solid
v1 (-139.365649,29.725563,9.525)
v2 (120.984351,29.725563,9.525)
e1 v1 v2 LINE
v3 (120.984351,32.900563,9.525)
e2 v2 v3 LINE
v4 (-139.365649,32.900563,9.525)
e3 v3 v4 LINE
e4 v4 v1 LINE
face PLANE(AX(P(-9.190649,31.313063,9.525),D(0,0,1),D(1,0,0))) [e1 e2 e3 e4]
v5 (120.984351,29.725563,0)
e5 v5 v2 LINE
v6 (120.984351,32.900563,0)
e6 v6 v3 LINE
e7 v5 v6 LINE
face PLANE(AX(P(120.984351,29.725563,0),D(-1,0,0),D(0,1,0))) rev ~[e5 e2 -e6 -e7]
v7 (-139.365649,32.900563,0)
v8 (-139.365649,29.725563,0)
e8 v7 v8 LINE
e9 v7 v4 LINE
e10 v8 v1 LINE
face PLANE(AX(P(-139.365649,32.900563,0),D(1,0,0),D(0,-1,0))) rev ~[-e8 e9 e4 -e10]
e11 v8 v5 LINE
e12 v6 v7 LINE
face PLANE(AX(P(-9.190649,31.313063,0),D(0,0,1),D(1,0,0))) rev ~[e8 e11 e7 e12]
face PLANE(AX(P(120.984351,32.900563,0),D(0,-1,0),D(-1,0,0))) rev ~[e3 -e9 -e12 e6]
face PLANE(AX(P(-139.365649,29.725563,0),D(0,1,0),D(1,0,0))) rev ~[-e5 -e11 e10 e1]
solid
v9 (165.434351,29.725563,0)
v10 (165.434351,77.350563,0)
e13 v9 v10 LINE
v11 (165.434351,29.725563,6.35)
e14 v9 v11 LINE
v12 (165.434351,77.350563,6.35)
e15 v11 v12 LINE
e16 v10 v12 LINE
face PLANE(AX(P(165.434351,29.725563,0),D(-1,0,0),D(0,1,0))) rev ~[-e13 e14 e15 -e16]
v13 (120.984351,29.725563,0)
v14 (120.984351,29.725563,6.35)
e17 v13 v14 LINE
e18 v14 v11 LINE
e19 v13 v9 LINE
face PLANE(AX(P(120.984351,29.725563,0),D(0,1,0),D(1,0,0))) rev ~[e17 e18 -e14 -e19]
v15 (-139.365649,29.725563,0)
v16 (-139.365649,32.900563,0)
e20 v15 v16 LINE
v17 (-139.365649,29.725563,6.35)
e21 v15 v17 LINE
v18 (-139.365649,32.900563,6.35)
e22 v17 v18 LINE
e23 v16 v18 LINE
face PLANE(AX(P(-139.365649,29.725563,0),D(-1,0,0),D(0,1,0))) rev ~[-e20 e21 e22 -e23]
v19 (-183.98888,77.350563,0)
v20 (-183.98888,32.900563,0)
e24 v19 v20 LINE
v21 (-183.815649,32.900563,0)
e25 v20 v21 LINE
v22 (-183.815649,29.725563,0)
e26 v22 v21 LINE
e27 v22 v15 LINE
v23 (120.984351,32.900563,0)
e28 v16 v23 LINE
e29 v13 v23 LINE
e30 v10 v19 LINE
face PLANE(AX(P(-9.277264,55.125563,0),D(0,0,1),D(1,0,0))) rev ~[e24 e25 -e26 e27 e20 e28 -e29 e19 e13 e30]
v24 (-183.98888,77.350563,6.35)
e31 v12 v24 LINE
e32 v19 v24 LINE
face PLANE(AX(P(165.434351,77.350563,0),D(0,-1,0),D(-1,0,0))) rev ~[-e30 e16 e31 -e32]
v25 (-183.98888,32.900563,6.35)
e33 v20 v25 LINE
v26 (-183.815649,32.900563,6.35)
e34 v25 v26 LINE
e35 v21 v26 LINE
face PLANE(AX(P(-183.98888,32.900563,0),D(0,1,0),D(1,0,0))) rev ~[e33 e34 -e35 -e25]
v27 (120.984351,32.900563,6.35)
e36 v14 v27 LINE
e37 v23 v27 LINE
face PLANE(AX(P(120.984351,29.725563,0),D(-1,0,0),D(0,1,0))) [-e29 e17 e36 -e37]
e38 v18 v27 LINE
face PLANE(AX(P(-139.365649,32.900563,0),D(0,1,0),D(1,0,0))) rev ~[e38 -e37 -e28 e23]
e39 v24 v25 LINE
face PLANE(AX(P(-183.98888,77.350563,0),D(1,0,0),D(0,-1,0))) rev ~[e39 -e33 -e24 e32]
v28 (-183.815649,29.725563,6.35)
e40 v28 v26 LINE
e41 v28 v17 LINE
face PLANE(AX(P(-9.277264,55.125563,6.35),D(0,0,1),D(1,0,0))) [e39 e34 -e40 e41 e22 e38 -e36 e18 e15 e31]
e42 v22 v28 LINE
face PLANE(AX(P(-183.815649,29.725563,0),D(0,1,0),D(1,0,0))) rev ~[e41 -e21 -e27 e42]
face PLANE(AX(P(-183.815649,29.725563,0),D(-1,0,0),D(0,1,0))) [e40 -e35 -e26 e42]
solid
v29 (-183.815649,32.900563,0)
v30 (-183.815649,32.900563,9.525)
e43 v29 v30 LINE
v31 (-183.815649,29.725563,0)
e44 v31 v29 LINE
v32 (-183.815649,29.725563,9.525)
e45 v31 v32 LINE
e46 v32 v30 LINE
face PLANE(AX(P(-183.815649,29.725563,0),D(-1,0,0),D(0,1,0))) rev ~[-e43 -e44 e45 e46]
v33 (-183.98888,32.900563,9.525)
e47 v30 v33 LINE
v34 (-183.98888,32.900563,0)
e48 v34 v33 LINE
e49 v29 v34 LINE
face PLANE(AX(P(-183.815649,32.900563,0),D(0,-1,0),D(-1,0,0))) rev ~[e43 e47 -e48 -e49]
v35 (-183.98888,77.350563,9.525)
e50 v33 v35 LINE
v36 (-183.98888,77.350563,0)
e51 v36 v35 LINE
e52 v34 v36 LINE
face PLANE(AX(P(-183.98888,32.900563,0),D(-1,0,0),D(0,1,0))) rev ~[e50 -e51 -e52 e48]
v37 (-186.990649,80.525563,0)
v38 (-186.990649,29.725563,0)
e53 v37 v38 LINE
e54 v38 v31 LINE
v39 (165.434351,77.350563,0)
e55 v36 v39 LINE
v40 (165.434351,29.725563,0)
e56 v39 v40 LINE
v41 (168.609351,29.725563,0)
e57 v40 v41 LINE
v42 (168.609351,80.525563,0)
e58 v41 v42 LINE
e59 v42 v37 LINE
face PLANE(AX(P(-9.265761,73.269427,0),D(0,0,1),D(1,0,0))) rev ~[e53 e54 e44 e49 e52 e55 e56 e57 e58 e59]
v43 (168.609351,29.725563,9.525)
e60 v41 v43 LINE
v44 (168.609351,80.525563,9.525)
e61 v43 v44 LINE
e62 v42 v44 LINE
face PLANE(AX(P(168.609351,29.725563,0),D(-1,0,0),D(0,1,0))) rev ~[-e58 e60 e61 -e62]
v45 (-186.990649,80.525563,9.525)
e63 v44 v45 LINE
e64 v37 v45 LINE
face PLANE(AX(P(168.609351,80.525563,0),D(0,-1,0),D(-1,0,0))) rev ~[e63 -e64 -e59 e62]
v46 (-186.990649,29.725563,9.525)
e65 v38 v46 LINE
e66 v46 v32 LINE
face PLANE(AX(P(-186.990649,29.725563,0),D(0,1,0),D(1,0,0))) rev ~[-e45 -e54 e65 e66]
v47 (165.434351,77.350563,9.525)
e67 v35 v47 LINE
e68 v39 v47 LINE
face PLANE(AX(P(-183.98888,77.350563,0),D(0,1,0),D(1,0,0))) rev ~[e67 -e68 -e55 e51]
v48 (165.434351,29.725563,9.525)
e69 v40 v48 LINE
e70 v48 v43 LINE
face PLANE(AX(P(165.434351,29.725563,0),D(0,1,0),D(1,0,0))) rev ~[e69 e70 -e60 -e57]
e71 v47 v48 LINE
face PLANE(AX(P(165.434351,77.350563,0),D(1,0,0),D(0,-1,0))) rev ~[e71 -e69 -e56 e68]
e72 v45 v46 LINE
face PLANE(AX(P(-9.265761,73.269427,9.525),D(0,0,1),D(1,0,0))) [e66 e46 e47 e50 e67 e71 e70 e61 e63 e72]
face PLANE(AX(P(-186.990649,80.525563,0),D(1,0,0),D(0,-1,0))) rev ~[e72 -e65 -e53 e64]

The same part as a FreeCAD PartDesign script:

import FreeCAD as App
import Part
import Sketcher
Q = App.Units.Quantity

doc = App.newDocument("Part")
body = doc.addObject("PartDesign::Body", "Body")
body.AllowCompound = True

sketch1 = doc.addObject("Sketcher::SketchObject", "Sketch")
body.addObject(sketch1)
sketch1.AttachmentSupport = (doc.XY_Plane, [""])
sketch1.MapMode = "FlatFace"
sketch1.addGeometry(Part.LineSegment(App.Vector(-186.99, 29.73, 0), App.Vector(-183.82, 29.73, 0)), False)
sketch1.addGeometry(Part.LineSegment(App.Vector(-183.82, 29.73, 0), App.Vector(-183.82, 32.9, 0)), False)
sketch1.addGeometry(Part.LineSegment(App.Vector(-183.82, 32.9, 0), App.Vector(-183.99, 32.9, 0)), False)
sketch1.addGeometry(Part.LineSegment(App.Vector(-183.99, 32.9, 0), App.Vector(-183.99, 77.35, 0)), False)
sketch1.addGeometry(Part.LineSegment(App.Vector(-183.99, 77.35, 0), App.Vector(165.43, 77.35, 0)), False)
sketch1.addGeometry(Part.LineSegment(App.Vector(165.43, 77.35, 0), App.Vector(165.43, 29.73, 0)), False)
sketch1.addGeometry(Part.LineSegment(App.Vector(165.43, 29.73, 0), App.Vector(168.61, 29.73, 0)), False)
sketch1.addGeometry(Part.LineSegment(App.Vector(168.61, 29.73, 0), App.Vector(168.61, 80.53, 0)), False)
sketch1.addGeometry(Part.LineSegment(App.Vector(168.61, 80.53, 0), App.Vector(-186.99, 80.53, 0)), False)
sketch1.addGeometry(Part.LineSegment(App.Vector(-186.99, 80.53, 0), App.Vector(-186.99, 29.73, 0)), False)
sketch1.addGeometry(Part.LineSegment(App.Vector(-139.37, 32.9, 0), App.Vector(-139.37, 29.73, 0)), False)
sketch1.addGeometry(Part.LineSegment(App.Vector(-139.37, 29.73, 0), App.Vector(120.98, 29.73, 0)), False)
sketch1.addGeometry(Part.LineSegment(App.Vector(120.98, 29.73, 0), App.Vector(120.98, 32.9, 0)), False)
sketch1.addGeometry(Part.LineSegment(App.Vector(120.98, 32.9, 0), App.Vector(-139.37, 32.9, 0)), False)
sketch1.addConstraint(Sketcher.Constraint("Coincident", 0, 2, 1, 1))
sketch1.addConstraint(Sketcher.Constraint("Coincident", 1, 2, 2, 1))
sketch1.addConstraint(Sketcher.Constraint("Coincident", 2, 2, 3, 1))
sketch1.addConstraint(Sketcher.Constraint("Coincident", 3, 2, 4, 1))
sketch1.addConstraint(Sketcher.Constraint("Coincident", 4, 2, 5, 1))
sketch1.addConstraint(Sketcher.Constraint("Coincident", 5, 2, 6, 1))
sketch1.addConstraint(Sketcher.Constraint("Coincident", 6, 2, 7, 1))
sketch1.addConstraint(Sketcher.Constraint("Coincident", 7, 2, 8, 1))
sketch1.addConstraint(Sketcher.Constraint("Coincident", 8, 2, 9, 1))
sketch1.addConstraint(Sketcher.Constraint("Coincident", 9, 2, 0, 1))
sketch1.addConstraint(Sketcher.Constraint("Coincident", 10, 2, 11, 1))
sketch1.addConstraint(Sketcher.Constraint("Coincident", 11, 2, 12, 1))
sketch1.addConstraint(Sketcher.Constraint("Coincident", 12, 2, 13, 1))
sketch1.addConstraint(Sketcher.Constraint("Coincident", 13, 2, 10, 1))
sketch1.addConstraint(Sketcher.Constraint("Horizontal", 0))
sketch1.addConstraint(Sketcher.Constraint("Vertical", 1))
sketch1.addConstraint(Sketcher.Constraint("Horizontal", 2))
sketch1.addConstraint(Sketcher.Constraint("Vertical", 3))
sketch1.addConstraint(Sketcher.Constraint("Horizontal", 4))
sketch1.addConstraint(Sketcher.Constraint("Vertical", 5))
sketch1.addConstraint(Sketcher.Constraint("Horizontal", 6))
sketch1.addConstraint(Sketcher.Constraint("Vertical", 7))
sketch1.addConstraint(Sketcher.Constraint("Horizontal", 8))
sketch1.addConstraint(Sketcher.Constraint("Vertical", 9))
sketch1.addConstraint(Sketcher.Constraint("Vertical", 10))
sketch1.addConstraint(Sketcher.Constraint("Horizontal", 11))
sketch1.addConstraint(Sketcher.Constraint("Vertical", 12))
sketch1.addConstraint(Sketcher.Constraint("Horizontal", 13))
sketch1.addConstraint(Sketcher.Constraint("Horizontal", 0, 2, 5, 2))
sketch1.addConstraint(Sketcher.Constraint("Horizontal", 9, 2, 10, 2))
sketch1.addConstraint(Sketcher.Constraint("Horizontal", 2, 2, 12, 2))
sketch1.addConstraint(Sketcher.Constraint("Equal", 0, 6))
sketch1.addConstraint(Sketcher.Constraint("Equal", 6, 1))
sketch1.addConstraint(Sketcher.Constraint("DistanceX", 8, 2, 8, 1, Q("14 in")))
sketch1.addConstraint(Sketcher.Constraint("DistanceY", 7, 1, 7, 2, Q("2 in")))
sketch1.addConstraint(Sketcher.Constraint("DistanceX", 11, 1, 11, 2, Q("10.25 in")))
sketch1.addConstraint(Sketcher.Constraint("DistanceY", 3, 1, 3, 2, Q("1.75 in")))
sketch1.addConstraint(Sketcher.Constraint("DistanceX", 0, 1, 0, 2, Q("0.125 in")))
sketch1.addConstraint(Sketcher.Constraint("DistanceX", 0, 2, 10, 2, Q("1.75 in")))
sketch1.addConstraint(Sketcher.Constraint("DistanceX", 2, 2, 2, 1, 0.173231))
sketch1.addConstraint(Sketcher.Constraint("DistanceX", 0, 2, -1, 1, 183.815649))
sketch1.addConstraint(Sketcher.Constraint("DistanceY", -1, 1, 0, 2, 29.725563))
pad1 = doc.addObject("PartDesign::Pad", "Pad")
body.addObject(pad1)
pad1.Profile = sketch1
pad1.Length = Q("0.375 in")
body2 = doc.addObject("PartDesign::Body", "Body001")

sketch2 = doc.addObject("Sketcher::SketchObject", "Sketch001")
body2.addObject(sketch2)
sketch2.AttachmentSupport = (doc.getObject("XY_Plane001"), [""])
sketch2.MapMode = "FlatFace"
sketch2.addGeometry(Part.LineSegment(App.Vector(-183.99, 32.9, 0), App.Vector(-183.82, 32.9, 0)), False)
sketch2.addGeometry(Part.LineSegment(App.Vector(-183.82, 32.9, 0), App.Vector(-183.82, 29.73, 0)), False)
sketch2.addGeometry(Part.LineSegment(App.Vector(-183.82, 29.73, 0), App.Vector(-139.37, 29.73, 0)), False)
sketch2.addGeometry(Part.LineSegment(App.Vector(-139.37, 29.73, 0), App.Vector(-139.37, 32.9, 0)), False)
sketch2.addGeometry(Part.LineSegment(App.Vector(-139.37, 32.9, 0), App.Vector(120.98, 32.9, 0)), False)
sketch2.addGeometry(Part.LineSegment(App.Vector(120.98, 32.9, 0), App.Vector(120.98, 29.73, 0)), False)
sketch2.addGeometry(Part.LineSegment(App.Vector(120.98, 29.73, 0), App.Vector(165.43, 29.73, 0)), False)
sketch2.addGeometry(Part.LineSegment(App.Vector(165.43, 29.73, 0), App.Vector(165.43, 77.35, 0)), False)
sketch2.addGeometry(Part.LineSegment(App.Vector(165.43, 77.35, 0), App.Vector(-183.99, 77.35, 0)), False)
sketch2.addGeometry(Part.LineSegment(App.Vector(-183.99, 77.35, 0), App.Vector(-183.99, 32.9, 0)), False)
sketch2.addConstraint(Sketcher.Constraint("Coincident", 0, 2, 1, 1))
sketch2.addConstraint(Sketcher.Constraint("Coincident", 1, 2, 2, 1))
sketch2.addConstraint(Sketcher.Constraint("Coincident", 2, 2, 3, 1))
sketch2.addConstraint(Sketcher.Constraint("Coincident", 3, 2, 4, 1))
sketch2.addConstraint(Sketcher.Constraint("Coincident", 4, 2, 5, 1))
sketch2.addConstraint(Sketcher.Constraint("Coincident", 5, 2, 6, 1))
sketch2.addConstraint(Sketcher.Constraint("Coincident", 6, 2, 7, 1))
sketch2.addConstraint(Sketcher.Constraint("Coincident", 7, 2, 8, 1))
sketch2.addConstraint(Sketcher.Constraint("Coincident", 8, 2, 9, 1))
sketch2.addConstraint(Sketcher.Constraint("Coincident", 9, 2, 0, 1))
sketch2.addConstraint(Sketcher.Constraint("Horizontal", 0))
sketch2.addConstraint(Sketcher.Constraint("Vertical", 1))
sketch2.addConstraint(Sketcher.Constraint("Horizontal", 2))
sketch2.addConstraint(Sketcher.Constraint("Vertical", 3))
sketch2.addConstraint(Sketcher.Constraint("Horizontal", 4))
sketch2.addConstraint(Sketcher.Constraint("Vertical", 5))
sketch2.addConstraint(Sketcher.Constraint("Horizontal", 6))
sketch2.addConstraint(Sketcher.Constraint("Vertical", 7))
sketch2.addConstraint(Sketcher.Constraint("Horizontal", 8))
sketch2.addConstraint(Sketcher.Constraint("Vertical", 9))
sketch2.addConstraint(Sketcher.Constraint("Horizontal", 0, 2, 3, 2))
sketch2.addConstraint(Sketcher.Constraint("Horizontal", 2, 2, 5, 2))
sketch2.addConstraint(Sketcher.Constraint("Equal", 2, 6))
sketch2.addConstraint(Sketcher.Constraint("Equal", 6, 9))
sketch2.addConstraint(Sketcher.Constraint("DistanceX", 0, 2, 4, 2, Q("12 in")))
sketch2.addConstraint(Sketcher.Constraint("DistanceX", 2, 1, 2, 2, Q("1.75 in")))
sketch2.addConstraint(Sketcher.Constraint("DistanceY", 1, 2, 1, 1, Q("0.125 in")))
sketch2.addConstraint(Sketcher.Constraint("DistanceX", 0, 1, 0, 2, 0.173231))
sketch2.addConstraint(Sketcher.Constraint("DistanceX", 0, 2, -1, 1, 183.815649))
sketch2.addConstraint(Sketcher.Constraint("DistanceY", -1, 1, 0, 2, 32.900563))
pad2 = doc.addObject("PartDesign::Pad", "Pad001")
body2.addObject(pad2)
pad2.Profile = sketch2
pad2.Length = Q("0.25 in")

doc.recompute()
